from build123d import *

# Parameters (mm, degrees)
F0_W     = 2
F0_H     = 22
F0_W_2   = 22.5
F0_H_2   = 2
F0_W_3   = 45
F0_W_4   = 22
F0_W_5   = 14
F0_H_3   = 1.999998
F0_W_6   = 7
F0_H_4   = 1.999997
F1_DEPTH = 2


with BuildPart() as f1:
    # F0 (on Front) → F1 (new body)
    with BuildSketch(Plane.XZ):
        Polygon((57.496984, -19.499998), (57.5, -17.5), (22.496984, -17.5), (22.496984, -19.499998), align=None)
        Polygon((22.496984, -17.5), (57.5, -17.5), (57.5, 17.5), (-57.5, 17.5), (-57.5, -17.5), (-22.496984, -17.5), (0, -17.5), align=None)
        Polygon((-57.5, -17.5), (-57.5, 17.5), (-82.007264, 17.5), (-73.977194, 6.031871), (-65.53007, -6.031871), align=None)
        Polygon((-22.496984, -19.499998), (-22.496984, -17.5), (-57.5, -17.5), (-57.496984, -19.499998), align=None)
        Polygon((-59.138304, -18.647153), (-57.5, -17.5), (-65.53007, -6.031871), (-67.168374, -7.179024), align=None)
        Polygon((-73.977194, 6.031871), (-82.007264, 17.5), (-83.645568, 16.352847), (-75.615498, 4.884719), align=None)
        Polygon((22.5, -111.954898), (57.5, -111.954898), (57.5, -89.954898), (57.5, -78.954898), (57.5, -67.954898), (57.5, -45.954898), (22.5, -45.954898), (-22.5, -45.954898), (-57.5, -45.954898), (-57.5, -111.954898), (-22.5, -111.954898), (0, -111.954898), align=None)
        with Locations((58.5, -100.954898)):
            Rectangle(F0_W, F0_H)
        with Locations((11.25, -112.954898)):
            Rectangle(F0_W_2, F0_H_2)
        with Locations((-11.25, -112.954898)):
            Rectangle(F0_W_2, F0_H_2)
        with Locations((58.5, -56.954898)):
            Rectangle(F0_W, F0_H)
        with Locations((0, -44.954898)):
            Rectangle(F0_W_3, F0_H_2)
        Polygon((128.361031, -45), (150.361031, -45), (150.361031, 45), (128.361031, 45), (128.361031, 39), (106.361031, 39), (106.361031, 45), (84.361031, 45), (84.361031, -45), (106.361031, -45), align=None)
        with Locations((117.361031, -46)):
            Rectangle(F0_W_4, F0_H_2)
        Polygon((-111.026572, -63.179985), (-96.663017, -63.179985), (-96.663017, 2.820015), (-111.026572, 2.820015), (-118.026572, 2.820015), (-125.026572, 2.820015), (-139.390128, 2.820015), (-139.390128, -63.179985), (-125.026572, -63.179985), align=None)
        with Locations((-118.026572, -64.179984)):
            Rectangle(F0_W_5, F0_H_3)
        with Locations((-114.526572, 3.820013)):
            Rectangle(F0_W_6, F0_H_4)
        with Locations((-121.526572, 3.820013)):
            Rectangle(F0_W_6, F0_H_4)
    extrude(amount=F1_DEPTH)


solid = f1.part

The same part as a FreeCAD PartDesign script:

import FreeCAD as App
import Part
import Sketcher
Q = App.Units.Quantity

doc = App.newDocument("Part")
body = doc.addObject("PartDesign::Body", "Body")
body.AllowCompound = True

sketch1 = body.newObject("Sketcher::SketchObject", "Sketch")
sketch1.AttachmentSupport = (doc.getObject("XZ_Plane"), [""])
sketch1.MapMode = "FlatFace"
sketch1.addGeometry([
    Part.LineSegment(App.Vector(57.496984, -19.499998, 0), App.Vector(57.5, -17.5, 0)),
    Part.LineSegment(App.Vector(57.5, -17.5, 0), App.Vector(57.5, 17.5, 0)),
    Part.LineSegment(App.Vector(57.5, 17.5, 0), App.Vector(-82.007264, 17.5, 0)),
    Part.LineSegment(App.Vector(-82.007264, 17.5, 0), App.Vector(-83.645568, 16.352847, 0)),
    Part.LineSegment(App.Vector(-83.645568, 16.352847, 0), App.Vector(-75.615498, 4.884719, 0)),
    Part.LineSegment(App.Vector(-75.615498, 4.884719, 0), App.Vector(-73.977194, 6.031871, 0)),
    Part.LineSegment(App.Vector(-73.977194, 6.031871, 0), App.Vector(-65.53007, -6.031871, 0)),
    Part.LineSegment(App.Vector(-65.53007, -6.031871, 0), App.Vector(-67.168374, -7.179024, 0)),
    Part.LineSegment(App.Vector(-67.168374, -7.179024, 0), App.Vector(-59.138304, -18.647153, 0)),
    Part.LineSegment(App.Vector(-59.138304, -18.647153, 0), App.Vector(-57.5, -17.5, 0)),
    Part.LineSegment(App.Vector(-57.5, -17.5, 0), App.Vector(-57.496984, -19.499998, 0)),
    Part.LineSegment(App.Vector(-57.496984, -19.499998, 0), App.Vector(-22.496984, -19.499998, 0)),
    Part.LineSegment(App.Vector(-22.496984, -19.499998, 0), App.Vector(-22.496984, -17.5, 0)),
    Part.LineSegment(App.Vector(-22.496984, -17.5, 0), App.Vector(22.496984, -17.5, 0)),
    Part.LineSegment(App.Vector(22.496984, -17.5, 0), App.Vector(22.496984, -19.499998, 0)),
    Part.LineSegment(App.Vector(22.496984, -19.499998, 0), App.Vector(57.496984, -19.499998, 0)),
    Part.LineSegment(App.Vector(57.5, -89.954898, 0), App.Vector(57.5, -67.954898, 0)),
    Part.LineSegment(App.Vector(57.5, -67.954898, 0), App.Vector(59.5, -67.954898, 0)),
    Part.LineSegment(App.Vector(59.5, -67.954898, 0), App.Vector(59.5, -45.954898, 0)),
    Part.LineSegment(App.Vector(59.5, -45.954898, 0), App.Vector(22.5, -45.954898, 0)),
    Part.LineSegment(App.Vector(22.5, -45.954898, 0), App.Vector(22.5, -43.954898, 0)),
    Part.LineSegment(App.Vector(22.5, -43.954898, 0), App.Vector(-22.5, -43.954898, 0)),
    Part.LineSegment(App.Vector(-22.5, -43.954898, 0), App.Vector(-22.5, -45.954898, 0)),
    Part.LineSegment(App.Vector(-22.5, -45.954898, 0), App.Vector(-57.5, -45.954898, 0)),
    Part.LineSegment(App.Vector(-57.5, -45.954898, 0), App.Vector(-57.5, -111.954898, 0)),
    Part.LineSegment(App.Vector(-57.5, -111.954898, 0), App.Vector(-22.5, -111.954898, 0)),
    Part.LineSegment(App.Vector(-22.5, -111.954898, 0), App.Vector(-22.5, -113.954898, 0)),
    Part.LineSegment(App.Vector(-22.5, -113.954898, 0), App.Vector(22.5, -113.954898, 0)),
    Part.LineSegment(App.Vector(22.5, -113.954898, 0), App.Vector(22.5, -111.954898, 0)),
    Part.LineSegment(App.Vector(22.5, -111.954898, 0), App.Vector(59.5, -111.954898, 0)),
    Part.LineSegment(App.Vector(59.5, -111.954898, 0), App.Vector(59.5, -89.954898, 0)),
    Part.LineSegment(App.Vector(59.5, -89.954898, 0), App.Vector(57.5, -89.954898, 0)),
    Part.LineSegment(App.Vector(150.361031, -45, 0), App.Vector(150.361031, 45, 0)),
    Part.LineSegment(App.Vector(150.361031, 45, 0), App.Vector(128.361031, 45, 0)),
    Part.LineSegment(App.Vector(128.361031, 45, 0), App.Vector(128.361031, 39, 0)),
    Part.LineSegment(App.Vector(128.361031, 39, 0), App.Vector(106.361031, 39, 0)),
    Part.LineSegment(App.Vector(106.361031, 39, 0), App.Vector(106.361031, 45, 0)),
    Part.LineSegment(App.Vector(106.361031, 45, 0), App.Vector(84.361031, 45, 0)),
    Part.LineSegment(App.Vector(84.361031, 45, 0), App.Vector(84.361031, -45, 0)),
    Part.LineSegment(App.Vector(84.361031, -45, 0), App.Vector(106.361031, -45, 0)),
    Part.LineSegment(App.Vector(106.361031, -45, 0), App.Vector(106.361031, -47, 0)),
    Part.LineSegment(App.Vector(106.361031, -47, 0), App.Vector(128.361031, -47, 0)),
    Part.LineSegment(App.Vector(128.361031, -47, 0), App.Vector(128.361031, -45, 0)),
    Part.LineSegment(App.Vector(128.361031, -45, 0), App.Vector(150.361031, -45, 0)),
    Part.LineSegment(App.Vector(-111.026572, -65.179983, 0), App.Vector(-111.026572, -63.179985, 0)),
    Part.LineSegment(App.Vector(-111.026572, -63.179985, 0), App.Vector(-96.663017, -63.179985, 0)),
    Part.LineSegment(App.Vector(-96.663017, -63.179985, 0), App.Vector(-96.663017, 2.820015, 0)),
    Part.LineSegment(App.Vector(-96.663017, 2.820015, 0), App.Vector(-111.026572, 2.820015, 0)),
    Part.LineSegment(App.Vector(-111.026572, 2.820015, 0), App.Vector(-111.026572, 4.820011, 0)),
    Part.LineSegment(App.Vector(-111.026572, 4.820011, 0), App.Vector(-125.026572, 4.820011, 0)),
    Part.LineSegment(App.Vector(-125.026572, 4.820011, 0), App.Vector(-125.026572, 2.820015, 0)),
    Part.LineSegment(App.Vector(-125.026572, 2.820015, 0), App.Vector(-139.390128, 2.820015, 0)),
    Part.LineSegment(App.Vector(-139.390128, 2.820015, 0), App.Vector(-139.390128, -63.179985, 0)),
    Part.LineSegment(App.Vector(-139.390128, -63.179985, 0), App.Vector(-125.026572, -63.179985, 0)),
    Part.LineSegment(App.Vector(-125.026572, -63.179985, 0), App.Vector(-125.026572, -65.179983, 0)),
    Part.LineSegment(App.Vector(-125.026572, -65.179983, 0), App.Vector(-111.026572, -65.179983, 0)),
], False)
sketch1.addConstraint([
    Sketcher.Constraint("Coincident", 0, 2, 1, 1),
    Sketcher.Constraint("Coincident", 1, 2, 2, 1),
    Sketcher.Constraint("Coincident", 2, 2, 3, 1),
    Sketcher.Constraint("Coincident", 3, 2, 4, 1),
    Sketcher.Constraint("Coincident", 4, 2, 5, 1),
    Sketcher.Constraint("Coincident", 5, 2, 6, 1),
    Sketcher.Constraint("Coincident", 6, 2, 7, 1),
    Sketcher.Constraint("Coincident", 7, 2, 8, 1),
    Sketcher.Constraint("Coincident", 8, 2, 9, 1),
    Sketcher.Constraint("Coincident", 9, 2, 10, 1),
    Sketcher.Constraint("Coincident", 10, 2, 11, 1),
    Sketcher.Constraint("Coincident", 11, 2, 12, 1),
    Sketcher.Constraint("Coincident", 12, 2, 13, 1),
    Sketcher.Constraint("Coincident", 13, 2, 14, 1),
    Sketcher.Constraint("Coincident", 14, 2, 15, 1),
    Sketcher.Constraint("Coincident", 15, 2, 0, 1),
    Sketcher.Constraint("Coincident", 16, 2, 17, 1),
    Sketcher.Constraint("Coincident", 17, 2, 18, 1),
    Sketcher.Constraint("Coincident", 18, 2, 19, 1),
    Sketcher.Constraint("Coincident", 19, 2, 20, 1),
    Sketcher.Constraint("Coincident", 20, 2, 21, 1),
    Sketcher.Constraint("Coincident", 21, 2, 22, 1),
    Sketcher.Constraint("Coincident", 22, 2, 23, 1),
    Sketcher.Constraint("Coincident", 23, 2, 24, 1),
    Sketcher.Constraint("Coincident", 24, 2, 25, 1),
    Sketcher.Constraint("Coincident", 25, 2, 26, 1),
    Sketcher.Constraint("Coincident", 26, 2, 27, 1),
    Sketcher.Constraint("Coincident", 27, 2, 28, 1),
    Sketcher.Constraint("Coincident", 28, 2, 29, 1),
    Sketcher.Constraint("Coincident", 29, 2, 30, 1),
    Sketcher.Constraint("Coincident", 30, 2, 31, 1),
    Sketcher.Constraint("Coincident", 31, 2, 16, 1),
    Sketcher.Constraint("Coincident", 32, 2, 33, 1),
    Sketcher.Constraint("Coincident", 33, 2, 34, 1),
    Sketcher.Constraint("Coincident", 34, 2, 35, 1),
    Sketcher.Constraint("Coincident", 35, 2, 36, 1),
    Sketcher.Constraint("Coincident", 36, 2, 37, 1),
    Sketcher.Constraint("Coincident", 37, 2, 38, 1),
    Sketcher.Constraint("Coincident", 38, 2, 39, 1),
    Sketcher.Constraint("Coincident", 39, 2, 40, 1),
    Sketcher.Constraint("Coincident", 40, 2, 41, 1),
    Sketcher.Constraint("Coincident", 41, 2, 42, 1),
    Sketcher.Constraint("Coincident", 42, 2, 43, 1),
    Sketcher.Constraint("Coincident", 43, 2, 32, 1),
    Sketcher.Constraint("Coincident", 44, 2, 45, 1),
    Sketcher.Constraint("Coincident", 45, 2, 46, 1),
    Sketcher.Constraint("Coincident", 46, 2, 47, 1),
    Sketcher.Constraint("Coincident", 47, 2, 48, 1),
    Sketcher.Constraint("Coincident", 48, 2, 49, 1),
    Sketcher.Constraint("Coincident", 49, 2, 50, 1),
    Sketcher.Constraint("Coincident", 50, 2, 51, 1),
    Sketcher.Constraint("Coincident", 51, 2, 52, 1),
    Sketcher.Constraint("Coincident", 52, 2, 53, 1),
    Sketcher.Constraint("Coincident", 53, 2, 54, 1),
    Sketcher.Constraint("Coincident", 54, 2, 55, 1),
    Sketcher.Constraint("Coincident", 55, 2, 44, 1),
    Sketcher.Constraint("Vertical", 1),
    Sketcher.Constraint("Horizontal", 2),
    Sketcher.Constraint("Horizontal", 11),
    Sketcher.Constraint("Vertical", 12),
    Sketcher.Constraint("Horizontal", 13),
    Sketcher.Constraint("Vertical", 14),
    Sketcher.Constraint("Horizontal", 15),
    Sketcher.Constraint("Vertical", 16),
    Sketcher.Constraint("Horizontal", 17),
    Sketcher.Constraint("Vertical", 18),
    Sketcher.Constraint("Horizontal", 19),
    Sketcher.Constraint("Vertical", 20),
    Sketcher.Constraint("Horizontal", 21),
    Sketcher.Constraint("Vertical", 22),
    Sketcher.Constraint("Horizontal", 23),
    Sketcher.Constraint("Vertical", 24),
    Sketcher.Constraint("Horizontal", 25),
    Sketcher.Constraint("Vertical", 26),
    Sketcher.Constraint("Horizontal", 27),
    Sketcher.Constraint("Vertical", 28),
    Sketcher.Constraint("Horizontal", 29),
    Sketcher.Constraint("Vertical", 30),
    Sketcher.Constraint("Horizontal", 31),
    Sketcher.Constraint("Vertical", 32),
    Sketcher.Constraint("Horizontal", 33),
    Sketcher.Constraint("Vertical", 34),
    Sketcher.Constraint("Horizontal", 35),
    Sketcher.Constraint("Vertical", 36),
    Sketcher.Constraint("Horizontal", 37),
    Sketcher.Constraint("Vertical", 38),
    Sketcher.Constraint("Horizontal", 39),
    Sketcher.Constraint("Vertical", 40),
    Sketcher.Constraint("Horizontal", 41),
    Sketcher.Constraint("Vertical", 42),
    Sketcher.Constraint("Horizontal", 43),
    Sketcher.Constraint("Vertical", 44),
    Sketcher.Constraint("Horizontal", 45),
    Sketcher.Constraint("Vertical", 46),
    Sketcher.Constraint("Horizontal", 47),
    Sketcher.Constraint("Vertical", 48),
    Sketcher.Constraint("Horizontal", 49),
    Sketcher.Constraint("Vertical", 50),
    Sketcher.Constraint("Horizontal", 51),
    Sketcher.Constraint("Vertical", 52),
    Sketcher.Constraint("Horizontal", 53),
    Sketcher.Constraint("Vertical", 54),
    Sketcher.Constraint("Horizontal", 55),
    Sketcher.Constraint("Symmetric", 1, 2, 9, 2, -1, 1),
    Sketcher.Constraint("Symmetric", 11, 2, 14, 2, -2),
    Sketcher.Constraint("Symmetric", 19, 2, 22, 2, -2),
    Sketcher.Constraint("Symmetric", 25, 2, 28, 2, -2),
    Sketcher.Constraint("Symmetric", 36, 2, 39, 2, -1),
    Sketcher.Constraint("Symmetric", 33, 2, 42, 2, -1),
    Sketcher.Constraint("Perpendicular", 3, 4),
    Sketcher.Constraint("Perpendicular", 4, 5),
    Sketcher.Constraint("Perpendicular", 5, 6),
    Sketcher.Constraint("Perpendicular", 6, 7),
    Sketcher.Constraint("Perpendicular", 7, 8),
    Sketcher.Constraint("Perpendicular", 8, 9),
    Sketcher.Constraint("Horizontal", 0, 2, 9, 2),
    Sketcher.Constraint("Horizontal", 9, 2, 12, 2),
    Sketcher.Constraint("Horizontal", 33, 2, 36, 2),
    Sketcher.Constraint("Horizontal", 47, 2, 50, 2),
    Sketcher.Constraint("Horizontal", 45, 2, 52, 2),
    Sketcher.Constraint("Vertical", 1, 2, 16, 2),
    Sketcher.Constraint("Vertical", 9, 2, 23, 2),
    Sketcher.Constraint("Vertical", 22, 2, 25, 2),
    Sketcher.Constraint("Vertical", 18, 2, 29, 2),
    Sketcher.Constraint("Vertical", 44, 2, 47, 2),
    Sketcher.Constraint("Vertical", 50, 2, 53, 2),
    Sketcher.Constraint("Equal", 11, 15),
    Sketcher.Constraint("Equal", 15, 23),
    Sketcher.Constraint("Equal", 33, 35),
    Sketcher.Constraint("Equal", 35, 37),
    Sketcher.Constraint("Equal", 47, 51),
    Sketcher.Constraint("Equal", 25, 1),
    Sketcher.Constraint("Equal", 31, 12),
    Sketcher.Constraint("Equal", 43, 16),
    Sketcher.Constraint("Equal", 16, 18),
    Sketcher.Constraint("Equal", 14, 20),
    Sketcher.Constraint("Equal", 22, 26),
    Sketcher.Constraint("Equal", 18, 30),
    Sketcher.Constraint("Equal", 28, 40),
    Sketcher.Constraint("Equal", 14, 44),
    Sketcher.Constraint("Equal", 24, 46),
    Sketcher.Constraint("Equal", 44, 48),
    Sketcher.Constraint("Equal", 0, 3),
    Sketcher.Constraint("Equal", 3, 5),
    Sketcher.Constraint("Equal", 5, 7),
    Sketcher.Constraint("Equal", 4, 8),
    Sketcher.Constraint("Equal", 7, 9),
    Sketcher.Constraint("DistanceX", 11, 1, 11, 2, Q("35 mm")),
    Sketcher.Constraint("DistanceX", 17, 1, 17, 2, Q("2 mm")),
    Sketcher.Constraint("DistanceX", 21, 2, 21, 1, Q("45 mm")),
    Sketcher.Constraint("DistanceX", 33, 2, 33, 1, Q("22 mm")),
    Sketcher.Constraint("DistanceX", 49, 2, 49, 1, Q("14 mm")),
    Sketcher.Constraint("DistanceY", 32, 1, 32, 2, Q("90 mm")),
    Sketcher.Constraint("DistanceY", 34, 2, 34, 1, Q("6 mm")),
    Sketcher.Constraint("Angle", 3, Q("-144.999996 deg")),
    Sketcher.Constraint("Distance", 4, Q("13.999999 mm")),
    Sketcher.Constraint("DistanceX", 13, 1, 13, 2, Q("44.993968 mm")),
    Sketcher.Constraint("DistanceY", 16, 2, -1, 1, Q("67.954898 mm")),
    Sketcher.Constraint("DistanceX", 44, 2, 7, 2, Q("43.858198 mm")),
    Sketcher.Constraint("DistanceX", 45, 1, 45, 2, Q("14.363555 mm")),
    Sketcher.Constraint("DistanceX", -1, 1, 32, 2, Q("150.361031 mm")),
    Sketcher.Constraint("DistanceY", -1, 1, 48, 2, Q("4.820011 mm")),
])
pad1 = body.newObject("PartDesign::Pad", "Pad")
pad1.Profile = sketch1
pad1.Length = 2

doc.recompute()
